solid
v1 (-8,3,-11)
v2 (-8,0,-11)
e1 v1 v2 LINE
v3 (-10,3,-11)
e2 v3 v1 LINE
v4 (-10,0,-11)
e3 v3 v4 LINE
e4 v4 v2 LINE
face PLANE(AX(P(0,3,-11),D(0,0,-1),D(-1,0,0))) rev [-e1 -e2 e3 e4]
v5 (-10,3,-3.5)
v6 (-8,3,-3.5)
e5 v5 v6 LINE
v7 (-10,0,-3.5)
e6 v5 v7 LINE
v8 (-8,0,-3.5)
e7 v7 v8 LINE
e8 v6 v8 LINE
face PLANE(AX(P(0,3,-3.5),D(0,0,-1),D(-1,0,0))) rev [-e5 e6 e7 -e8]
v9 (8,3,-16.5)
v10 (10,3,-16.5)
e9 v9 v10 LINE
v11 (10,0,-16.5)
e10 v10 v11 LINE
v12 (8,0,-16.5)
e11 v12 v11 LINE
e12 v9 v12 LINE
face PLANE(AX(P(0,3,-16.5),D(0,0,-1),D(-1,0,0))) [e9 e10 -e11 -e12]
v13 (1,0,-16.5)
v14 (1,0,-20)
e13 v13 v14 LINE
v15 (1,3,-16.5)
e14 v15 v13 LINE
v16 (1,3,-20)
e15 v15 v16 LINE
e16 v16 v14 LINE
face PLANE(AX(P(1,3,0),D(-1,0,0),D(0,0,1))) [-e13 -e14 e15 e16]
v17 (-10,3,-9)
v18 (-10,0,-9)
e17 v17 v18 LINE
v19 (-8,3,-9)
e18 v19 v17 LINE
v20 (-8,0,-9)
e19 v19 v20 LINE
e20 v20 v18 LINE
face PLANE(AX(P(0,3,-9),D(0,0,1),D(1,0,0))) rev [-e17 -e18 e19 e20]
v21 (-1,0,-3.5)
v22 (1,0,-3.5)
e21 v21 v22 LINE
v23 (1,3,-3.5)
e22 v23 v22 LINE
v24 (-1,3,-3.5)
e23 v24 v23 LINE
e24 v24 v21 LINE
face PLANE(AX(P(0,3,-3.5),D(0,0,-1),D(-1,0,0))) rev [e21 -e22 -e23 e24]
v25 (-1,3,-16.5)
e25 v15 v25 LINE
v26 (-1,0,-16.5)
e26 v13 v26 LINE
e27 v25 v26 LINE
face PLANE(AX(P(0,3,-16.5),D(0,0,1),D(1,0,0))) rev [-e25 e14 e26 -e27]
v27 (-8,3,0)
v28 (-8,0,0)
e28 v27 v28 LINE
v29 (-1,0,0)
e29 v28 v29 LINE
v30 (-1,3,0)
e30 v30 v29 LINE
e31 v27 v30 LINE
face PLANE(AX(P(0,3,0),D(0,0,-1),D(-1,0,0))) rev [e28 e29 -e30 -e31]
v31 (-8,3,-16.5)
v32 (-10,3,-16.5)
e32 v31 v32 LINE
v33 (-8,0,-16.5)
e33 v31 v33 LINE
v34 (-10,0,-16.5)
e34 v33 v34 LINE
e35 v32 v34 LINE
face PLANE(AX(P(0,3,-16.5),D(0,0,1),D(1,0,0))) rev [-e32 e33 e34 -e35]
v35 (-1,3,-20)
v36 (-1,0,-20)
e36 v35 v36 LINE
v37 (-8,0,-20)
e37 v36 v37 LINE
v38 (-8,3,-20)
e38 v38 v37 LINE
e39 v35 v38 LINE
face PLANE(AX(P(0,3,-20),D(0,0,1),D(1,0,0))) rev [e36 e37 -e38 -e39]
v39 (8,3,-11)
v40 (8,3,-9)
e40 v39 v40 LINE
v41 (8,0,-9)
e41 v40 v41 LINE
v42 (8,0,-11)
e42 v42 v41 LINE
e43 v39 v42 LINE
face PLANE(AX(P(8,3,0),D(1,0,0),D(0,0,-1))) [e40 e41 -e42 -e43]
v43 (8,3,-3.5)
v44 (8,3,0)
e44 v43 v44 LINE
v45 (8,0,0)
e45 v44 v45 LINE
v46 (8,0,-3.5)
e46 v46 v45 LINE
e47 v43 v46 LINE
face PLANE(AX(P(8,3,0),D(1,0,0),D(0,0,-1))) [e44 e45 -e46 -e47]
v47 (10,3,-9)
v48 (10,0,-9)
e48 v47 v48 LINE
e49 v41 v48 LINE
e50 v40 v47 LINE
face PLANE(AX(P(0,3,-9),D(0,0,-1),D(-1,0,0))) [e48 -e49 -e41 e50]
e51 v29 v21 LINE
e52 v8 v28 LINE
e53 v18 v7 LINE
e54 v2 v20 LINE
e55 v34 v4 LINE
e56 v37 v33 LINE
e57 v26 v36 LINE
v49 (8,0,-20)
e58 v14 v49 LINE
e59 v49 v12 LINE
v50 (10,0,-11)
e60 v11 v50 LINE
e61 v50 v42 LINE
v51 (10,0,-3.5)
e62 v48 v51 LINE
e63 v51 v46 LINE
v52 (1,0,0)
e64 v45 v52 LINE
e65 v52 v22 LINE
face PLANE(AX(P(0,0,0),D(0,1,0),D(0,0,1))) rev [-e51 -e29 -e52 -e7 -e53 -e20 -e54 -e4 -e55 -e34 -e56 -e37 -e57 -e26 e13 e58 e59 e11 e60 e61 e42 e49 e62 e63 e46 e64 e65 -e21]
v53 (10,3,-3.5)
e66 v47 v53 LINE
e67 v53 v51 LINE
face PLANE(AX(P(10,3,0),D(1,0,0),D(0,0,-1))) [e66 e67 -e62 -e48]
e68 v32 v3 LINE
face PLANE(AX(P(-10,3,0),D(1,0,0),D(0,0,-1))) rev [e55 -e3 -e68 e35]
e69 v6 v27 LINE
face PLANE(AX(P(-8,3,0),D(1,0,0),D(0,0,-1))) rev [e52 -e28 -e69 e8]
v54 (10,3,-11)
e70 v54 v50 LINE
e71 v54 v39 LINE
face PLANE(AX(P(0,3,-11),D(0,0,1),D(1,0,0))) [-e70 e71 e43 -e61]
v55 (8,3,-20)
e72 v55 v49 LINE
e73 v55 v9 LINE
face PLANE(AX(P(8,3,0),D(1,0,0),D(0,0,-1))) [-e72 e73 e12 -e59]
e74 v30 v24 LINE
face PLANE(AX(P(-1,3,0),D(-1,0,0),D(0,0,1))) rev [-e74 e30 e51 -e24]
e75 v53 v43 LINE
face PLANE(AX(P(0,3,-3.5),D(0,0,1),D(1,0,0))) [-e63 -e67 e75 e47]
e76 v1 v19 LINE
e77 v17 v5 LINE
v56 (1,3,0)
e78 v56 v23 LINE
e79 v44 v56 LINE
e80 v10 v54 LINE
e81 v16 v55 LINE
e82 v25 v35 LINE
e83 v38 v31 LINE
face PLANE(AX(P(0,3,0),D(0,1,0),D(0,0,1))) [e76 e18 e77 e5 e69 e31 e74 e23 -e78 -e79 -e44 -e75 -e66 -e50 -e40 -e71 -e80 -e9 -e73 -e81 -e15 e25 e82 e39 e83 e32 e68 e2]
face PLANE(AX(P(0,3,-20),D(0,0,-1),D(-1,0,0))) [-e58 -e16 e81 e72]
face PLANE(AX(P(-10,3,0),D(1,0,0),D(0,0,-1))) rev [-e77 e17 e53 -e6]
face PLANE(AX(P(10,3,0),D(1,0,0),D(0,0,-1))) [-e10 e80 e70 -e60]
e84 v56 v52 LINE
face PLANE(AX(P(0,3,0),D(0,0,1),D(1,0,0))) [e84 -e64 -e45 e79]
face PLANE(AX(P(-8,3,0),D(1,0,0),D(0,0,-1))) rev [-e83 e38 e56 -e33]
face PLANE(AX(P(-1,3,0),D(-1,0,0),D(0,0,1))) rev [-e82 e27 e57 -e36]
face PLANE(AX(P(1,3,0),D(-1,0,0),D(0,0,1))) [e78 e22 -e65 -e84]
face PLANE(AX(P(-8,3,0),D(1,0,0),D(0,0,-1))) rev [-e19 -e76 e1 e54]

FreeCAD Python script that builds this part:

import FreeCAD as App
import Part
import Sketcher

V = App.Vector
Q = App.Units.Quantity

doc = App.newDocument("Part")
body = doc.addObject("PartDesign::Body", "Body")

# Sketch on XZ plane
sketch1 = body.newObject("Sketcher::SketchObject", "Sketch")
sketch1.AttachmentSupport = (doc.getObject("XZ_Plane"), [""])
sketch1.MapMode = "FlatFace"
sketch1.addGeometry([
    Part.LineSegment(V(1, -20, 0), V(1, -16.5, 0)),  # 0
    Part.LineSegment(V(1, -16.5, 0), V(-1, -16.5, 0)),  # 1
    Part.LineSegment(V(-1, -16.5, 0), V(-1, -20, 0)),  # 2
    Part.LineSegment(V(-1, -20, 0), V(-8, -20, 0)),  # 3
    Part.LineSegment(V(-8, -20, 0), V(-8, -16.5, 0)),  # 4
    Part.LineSegment(V(-8, -16.5, 0), V(-10, -16.5, 0)),  # 5
    Part.LineSegment(V(-10, -16.5, 0), V(-10, -11, 0)),  # 6
    Part.LineSegment(V(-10, -11, 0), V(-8, -11, 0)),  # 7
    Part.LineSegment(V(-8, -11, 0), V(-8, -9, 0)),  # 8
    Part.LineSegment(V(-8, -9, 0), V(-10, -9, 0)),  # 9
    Part.LineSegment(V(-10, -9, 0), V(-10, -3.5, 0)),  # 10
    Part.LineSegment(V(-10, -3.5, 0), V(-8, -3.5, 0)),  # 11
    Part.LineSegment(V(-8, -3.5, 0), V(-8, 0, 0)),  # 12
    Part.LineSegment(V(-8, 0, 0), V(-1, 0, 0)),  # 13
    Part.LineSegment(V(-1, 0, 0), V(-1, -3.5, 0)),  # 14
    Part.LineSegment(V(-1, -3.5, 0), V(1, -3.5, 0)),  # 15
    Part.LineSegment(V(1, -3.5, 0), V(1, 0, 0)),  # 16
    Part.LineSegment(V(1, 0, 0), V(8, 0, 0)),  # 17
    Part.LineSegment(V(8, 0, 0), V(8, -3.5, 0)),  # 18
    Part.LineSegment(V(8, -3.5, 0), V(10, -3.5, 0)),  # 19
    Part.LineSegment(V(10, -3.5, 0), V(10, -9, 0)),  # 20
    Part.LineSegment(V(10, -9, 0), V(8, -9, 0)),  # 21
    Part.LineSegment(V(8, -9, 0), V(8, -11, 0)),  # 22
    Part.LineSegment(V(8, -11, 0), V(10, -11, 0)),  # 23
    Part.LineSegment(V(10, -11, 0), V(10, -16.5, 0)),  # 24
    Part.LineSegment(V(10, -16.5, 0), V(8, -16.5, 0)),  # 25
    Part.LineSegment(V(8, -16.5, 0), V(8, -20, 0)),  # 26
    Part.LineSegment(V(8, -20, 0), V(1, -20, 0)),  # 27
], False)
sketch1.addConstraint([
    Sketcher.Constraint("Coincident", 0, 2, 1, 1),
    Sketcher.Constraint("Coincident", 1, 2, 2, 1),
    Sketcher.Constraint("Coincident", 2, 2, 3, 1),
    Sketcher.Constraint("Coincident", 3, 2, 4, 1),
    Sketcher.Constraint("Coincident", 4, 2, 5, 1),
    Sketcher.Constraint("Coincident", 5, 2, 6, 1),
    Sketcher.Constraint("Coincident", 6, 2, 7, 1),
    Sketcher.Constraint("Coincident", 7, 2, 8, 1),
    Sketcher.Constraint("Coincident", 8, 2, 9, 1),
    Sketcher.Constraint("Coincident", 9, 2, 10, 1),
    Sketcher.Constraint("Coincident", 10, 2, 11, 1),
    Sketcher.Constraint("Coincident", 11, 2, 12, 1),
    Sketcher.Constraint("Coincident", 12, 2, 13, 1),
    Sketcher.Constraint("Coincident", 13, 2, 14, 1),
    Sketcher.Constraint("Coincident", 14, 2, 15, 1),
    Sketcher.Constraint("Coincident", 15, 2, 16, 1),
    Sketcher.Constraint("Coincident", 16, 2, 17, 1),
    Sketcher.Constraint("Coincident", 17, 2, 18, 1),
    Sketcher.Constraint("Coincident", 18, 2, 19, 1),
    Sketcher.Constraint("Coincident", 19, 2, 20, 1),
    Sketcher.Constraint("Coincident", 20, 2, 21, 1),
    Sketcher.Constraint("Coincident", 21, 2, 22, 1),
    Sketcher.Constraint("Coincident", 22, 2, 23, 1),
    Sketcher.Constraint("Coincident", 23, 2, 24, 1),
    Sketcher.Constraint("Coincident", 24, 2, 25, 1),
    Sketcher.Constraint("Coincident", 25, 2, 26, 1),
    Sketcher.Constraint("Coincident", 26, 2, 27, 1),
    Sketcher.Constraint("Coincident", 27, 2, 0, 1),
    Sketcher.Constraint("Vertical", 0),
    Sketcher.Constraint("Horizontal", 1),
    Sketcher.Constraint("Vertical", 2),
    Sketcher.Constraint("Horizontal", 3),
    Sketcher.Constraint("Vertical", 4),
    Sketcher.Constraint("Horizontal", 5),
    Sketcher.Constraint("Vertical", 6),
    Sketcher.Constraint("Horizontal", 7),
    Sketcher.Constraint("Vertical", 8),
    Sketcher.Constraint("Horizontal", 9),
    Sketcher.Constraint("Vertical", 10),
    Sketcher.Constraint("Horizontal", 11),
    Sketcher.Constraint("Vertical", 12),
    Sketcher.Constraint("Horizontal", 13),
    Sketcher.Constraint("Vertical", 14),
    Sketcher.Constraint("Horizontal", 15),
    Sketcher.Constraint("Vertical", 16),
    Sketcher.Constraint("Horizontal", 17),
    Sketcher.Constraint("Vertical", 18),
    Sketcher.Constraint("Horizontal", 19),
    Sketcher.Constraint("Vertical", 20),
    Sketcher.Constraint("Horizontal", 21),
    Sketcher.Constraint("Vertical", 22),
    Sketcher.Constraint("Horizontal", 23),
    Sketcher.Constraint("Vertical", 24),
    Sketcher.Constraint("Horizontal", 25),
    Sketcher.Constraint("Vertical", 26),
    Sketcher.Constraint("Horizontal", 27),
    Sketcher.Constraint("Symmetric", 13, 2, 16, 2, -1, 1),
    Sketcher.Constraint("Symmetric", 12, 2, 17, 2, -2),
    Sketcher.Constraint("Symmetric", 10, 2, 19, 2, -2),
    Sketcher.Constraint("Symmetric", 8, 2, 21, 2, -2),
    Sketcher.Constraint("Symmetric", 6, 2, 23, 2, -2),
    Sketcher.Constraint("Symmetric", 4, 2, 25, 2, -2),
    Sketcher.Constraint("Symmetric", 2, 2, 27, 2, -2),
    Sketcher.Constraint("Horizontal", 1, 2, 4, 2),
    Sketcher.Constraint("Horizontal", 11, 2, 14, 2),
    Sketcher.Constraint("Vertical", 4, 2, 7, 2),
    Sketcher.Constraint("Vertical", 6, 2, 9, 2),
    Sketcher.Constraint("Vertical", 8, 2, 11, 2),
    Sketcher.Constraint("Vertical", 2, 2, 13, 2),
    Sketcher.Constraint("Equal", 1, 5),
    Sketcher.Constraint("Equal", 25, 8),
    Sketcher.Constraint("Equal", 6, 10),
    Sketcher.Constraint("Equal", 4, 12),
    Sketcher.Constraint("DistanceX", 1, 2, 1, 1, Q("2 mm")),
    Sketcher.Constraint("DistanceX", 3, 2, 3, 1, Q("7 mm")),
    Sketcher.Constraint("DistanceY", 0, 1, 0, 2, Q("3.5 mm")),
    Sketcher.Constraint("DistanceY", 6, 1, 6, 2, Q("5.5 mm")),
])
pad1 = body.newObject("PartDesign::Pad", "Pad")
pad1.Profile = sketch1
pad1.Length = 3
pad1.Reversed = True

doc.recompute()
